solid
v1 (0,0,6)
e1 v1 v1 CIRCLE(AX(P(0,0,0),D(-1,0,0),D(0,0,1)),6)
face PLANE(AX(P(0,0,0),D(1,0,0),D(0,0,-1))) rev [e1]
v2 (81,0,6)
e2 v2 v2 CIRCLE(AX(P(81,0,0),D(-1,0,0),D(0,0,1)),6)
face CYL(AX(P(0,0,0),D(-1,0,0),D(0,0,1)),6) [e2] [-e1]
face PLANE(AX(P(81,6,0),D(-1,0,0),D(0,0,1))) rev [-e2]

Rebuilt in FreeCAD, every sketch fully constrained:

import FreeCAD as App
import Part
import Sketcher


def add_polygon(sketch, points):
    """Adds a closed chain of lines whose ends are joined by coincident constraints."""
    first, n = sketch.GeometryCount, len(points)
    for a, b in zip(points, points[1:] + points[:1]):
        sketch.addGeometry(Part.LineSegment(App.Vector(*a, 0), App.Vector(*b, 0)), False)
    for i in range(n):
        sketch.addConstraint(Sketcher.Constraint("Coincident", first + i, 2, first + (i + 1) % n, 1))

doc = App.newDocument("Part")
body = doc.addObject("PartDesign::Body", "Body")

# Sketch on XY plane
sketch1 = doc.addObject("Sketcher::SketchObject", "Sketch")
body.addObject(sketch1)
sketch1.AttachmentSupport = (doc.XY_Plane, [""])
sketch1.MapMode = "FlatFace"
add_polygon(sketch1, [(0, 6), (0, 0), (81, 0), (81, 6)])  # lines 0-3
sketch1.addConstraint(Sketcher.Constraint("Vertical", 0))
sketch1.addConstraint(Sketcher.Constraint("Horizontal", 1))
sketch1.addConstraint(Sketcher.Constraint("Vertical", 2))
sketch1.addConstraint(Sketcher.Constraint("Horizontal", 3))
sketch1.addConstraint(Sketcher.Constraint("Coincident", 0, 2, -1, 1))
sketch1.addConstraint(Sketcher.Constraint("DistanceX", 1, 1, 1, 2, 81.0))
sketch1.addConstraint(Sketcher.Constraint("DistanceY", 0, 2, 0, 1, 6.0))
revolution = doc.addObject("PartDesign::Revolution", "Revolution")
body.addObject(revolution)
revolution.Profile = sketch1
revolution.ReferenceAxis = (sketch1, ["H_Axis"])
revolution.Angle = 360

doc.recompute()
